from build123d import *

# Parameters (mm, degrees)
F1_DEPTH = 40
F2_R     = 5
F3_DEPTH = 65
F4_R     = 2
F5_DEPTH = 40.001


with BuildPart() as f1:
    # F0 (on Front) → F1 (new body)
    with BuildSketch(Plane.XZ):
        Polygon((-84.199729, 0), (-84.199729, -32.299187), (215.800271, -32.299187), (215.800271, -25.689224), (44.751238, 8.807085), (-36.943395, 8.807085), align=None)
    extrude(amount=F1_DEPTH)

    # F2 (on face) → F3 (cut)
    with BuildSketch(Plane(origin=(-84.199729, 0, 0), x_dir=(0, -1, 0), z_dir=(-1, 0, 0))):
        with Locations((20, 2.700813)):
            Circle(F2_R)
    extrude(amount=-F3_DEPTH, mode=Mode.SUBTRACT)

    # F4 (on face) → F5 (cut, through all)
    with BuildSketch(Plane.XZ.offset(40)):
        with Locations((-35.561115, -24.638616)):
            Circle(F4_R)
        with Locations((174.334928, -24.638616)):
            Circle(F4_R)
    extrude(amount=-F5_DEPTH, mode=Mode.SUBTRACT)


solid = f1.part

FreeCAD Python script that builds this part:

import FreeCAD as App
import Part
import Sketcher
from FreeCAD import Vector

doc = App.newDocument("Part")
body = doc.addObject("PartDesign::Body", "Body")

sketch1 = body.newObject("Sketcher::SketchObject", "Sketch")
sketch1.AttachmentSupport = (doc.getObject("XZ_Plane"), [""])
sketch1.MapMode = "FlatFace"
sketch1.addGeometry([
    Part.LineSegment(Vector(-84, 0, 0), Vector(-84, -32, 0)),
    Part.LineSegment(Vector(-84, -32, 0), Vector(216, -32, 0)),
    Part.LineSegment(Vector(216, -32, 0), Vector(216, -26, 0)),
    Part.LineSegment(Vector(216, -26, 0), Vector(45, 9, 0)),
    Part.LineSegment(Vector(45, 9, 0), Vector(-37, 9, 0)),
    Part.LineSegment(Vector(-37, 9, 0), Vector(-84, 0, 0)),
], False)
sketch1.addConstraint([
    Sketcher.Constraint("Coincident", 0, 2, 1, 1),
    Sketcher.Constraint("Coincident", 1, 2, 2, 1),
    Sketcher.Constraint("Coincident", 2, 2, 3, 1),
    Sketcher.Constraint("Coincident", 3, 2, 4, 1),
    Sketcher.Constraint("Coincident", 4, 2, 5, 1),
    Sketcher.Constraint("Coincident", 5, 2, 0, 1),
    Sketcher.Constraint("Vertical", 0),
    Sketcher.Constraint("Horizontal", 1),
    Sketcher.Constraint("Vertical", 2),
    Sketcher.Constraint("Horizontal", 4),
    Sketcher.Constraint("PointOnObject", 5, 2, -1),
    Sketcher.Constraint("DistanceX", 1, 1, 1, 2, 300.0),
    Sketcher.Constraint("Distance", 5, 48.07001),
    Sketcher.Constraint("DistanceX", 4, 2, 4, 1, 81.694633),
    Sketcher.Constraint("DistanceY", 0, 2, 0, 1, 32.299187),
    Sketcher.Constraint("DistanceY", 2, 1, 2, 2, 6.609963),
    Sketcher.Constraint("DistanceX", 0, 2, -1, 1, 84.199729),
    Sketcher.Constraint("DistanceY", 2, 2, 3, 2, 34.496309),
])
pad1 = body.newObject("PartDesign::Pad", "Pad")
pad1.Profile = sketch1
pad1.Length = 40

sketch2 = body.newObject("Sketcher::SketchObject", "Sketch001")
sketch2.AttachmentSupport = (doc.getObject("YZ_Plane"), [""])
sketch2.MapMode = "FlatFace"
sketch2.AttachmentOffset = App.Placement(Vector(0, 0, -84.199729), App.Rotation())
sketch2.addGeometry(Part.Circle(Vector(-20, 3, 0), Vector(0, 0, 1), 5), False)
sketch2.addConstraint([
    Sketcher.Constraint("Diameter", 0, 10.0),
    Sketcher.Constraint("DistanceX", 0, 3, -1, 1, 20.0),
    Sketcher.Constraint("DistanceY", -1, 1, 0, 3, 2.700813),
])
pocket1 = body.newObject("PartDesign::Pocket", "Pocket")
pocket1.Profile = sketch2
pocket1.Length = 65
pocket1.Reversed = True

sketch3 = body.newObject("Sketcher::SketchObject", "Sketch002")
sketch3.AttachmentSupport = (doc.getObject("XZ_Plane"), [""])
sketch3.MapMode = "FlatFace"
sketch3.AttachmentOffset = App.Placement(Vector(0, 0, 40), App.Rotation())
sketch3.addGeometry([
    Part.Circle(Vector(-35.6, -24.6, 0), Vector(0, 0, 1), 2),
    Part.Circle(Vector(174.3, -24.6, 0), Vector(0, 0, 1), 2),
], False)
sketch3.addConstraint([
    Sketcher.Constraint("Equal", 0, 1),
    Sketcher.Constraint("Horizontal", 0, 3, 1, 3),
    Sketcher.Constraint("Diameter", 0, 4.0),
    Sketcher.Constraint("DistanceX", 0, 3, -1, 1, 35.561115),
    Sketcher.Constraint("DistanceY", 0, 3, -1, 1, 24.638616),
    Sketcher.Constraint("DistanceX", -1, 1, 1, 3, 174.334928),
])
pocket2 = body.newObject("PartDesign::Pocket", "Pocket001")
pocket2.Profile = sketch3
pocket2.Type = "ThroughAll"

doc.recompute()
